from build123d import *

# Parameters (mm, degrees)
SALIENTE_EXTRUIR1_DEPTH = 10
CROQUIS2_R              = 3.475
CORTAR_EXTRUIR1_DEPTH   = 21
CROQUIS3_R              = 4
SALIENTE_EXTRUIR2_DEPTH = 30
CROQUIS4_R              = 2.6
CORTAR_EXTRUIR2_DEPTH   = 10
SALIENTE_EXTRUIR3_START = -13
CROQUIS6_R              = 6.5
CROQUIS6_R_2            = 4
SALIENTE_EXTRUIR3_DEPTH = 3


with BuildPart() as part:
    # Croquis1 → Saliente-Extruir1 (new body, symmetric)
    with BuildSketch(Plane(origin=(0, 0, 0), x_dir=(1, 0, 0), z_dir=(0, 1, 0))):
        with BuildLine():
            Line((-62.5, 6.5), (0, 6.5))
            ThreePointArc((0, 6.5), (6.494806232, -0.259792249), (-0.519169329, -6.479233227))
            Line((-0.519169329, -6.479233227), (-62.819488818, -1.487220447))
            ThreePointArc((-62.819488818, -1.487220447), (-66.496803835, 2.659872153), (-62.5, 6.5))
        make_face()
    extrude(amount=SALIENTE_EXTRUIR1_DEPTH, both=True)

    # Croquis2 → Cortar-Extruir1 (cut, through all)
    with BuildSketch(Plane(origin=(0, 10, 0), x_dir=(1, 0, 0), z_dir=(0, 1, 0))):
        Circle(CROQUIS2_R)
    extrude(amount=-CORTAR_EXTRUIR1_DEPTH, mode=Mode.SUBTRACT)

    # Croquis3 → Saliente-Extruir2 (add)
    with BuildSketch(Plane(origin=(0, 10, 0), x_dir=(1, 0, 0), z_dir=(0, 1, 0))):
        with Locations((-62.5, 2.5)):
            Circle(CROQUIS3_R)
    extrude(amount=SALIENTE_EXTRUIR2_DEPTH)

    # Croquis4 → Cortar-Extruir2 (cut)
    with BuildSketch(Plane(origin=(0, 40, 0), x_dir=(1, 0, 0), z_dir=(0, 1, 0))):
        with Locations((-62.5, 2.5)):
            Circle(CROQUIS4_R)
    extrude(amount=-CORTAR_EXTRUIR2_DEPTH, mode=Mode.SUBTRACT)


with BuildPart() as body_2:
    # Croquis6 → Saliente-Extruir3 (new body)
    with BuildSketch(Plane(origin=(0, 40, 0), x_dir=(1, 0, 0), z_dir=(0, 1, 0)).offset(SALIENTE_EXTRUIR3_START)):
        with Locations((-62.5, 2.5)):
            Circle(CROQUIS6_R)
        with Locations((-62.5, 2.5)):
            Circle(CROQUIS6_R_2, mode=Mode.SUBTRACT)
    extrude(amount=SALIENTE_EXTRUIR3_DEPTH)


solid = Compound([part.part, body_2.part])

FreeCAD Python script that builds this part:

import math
import FreeCAD as App
import Part
import Sketcher
from FreeCAD import Vector
Q = App.Units.Quantity

doc = App.newDocument("Part")
body = doc.addObject("PartDesign::Body", "Body")

sketch1 = body.newObject("Sketcher::SketchObject", "Sketch")
sketch1.AttachmentSupport = (doc.getObject("XZ_Plane"), [""])
sketch1.MapMode = "FlatFace"
sketch1.addGeometry(Part.LineSegment(Vector(0, -6.5, 0), Vector(-62.5, -6.5, 0)), False)
sketch1.addGeometry(Part.ArcOfCircle(Part.Circle(Vector(-62.5, -2.5, 0), Vector(0, 0, 1), 4), math.radians(95), math.radians(270)), False)
sketch1.addGeometry(Part.LineSegment(Vector(-62.8, 1.5, 0), Vector(-0.5, 6.5, 0)), False)
sketch1.addGeometry(Part.ArcOfCircle(Part.Circle(Vector(0, 0, 0), Vector(0, 0, 1), 6.5), math.radians(-90), math.radians(95)), False)
sketch1.addConstraint(Sketcher.Constraint("Tangent", 0, 2, 1, 2))
sketch1.addConstraint(Sketcher.Constraint("Tangent", 1, 1, 2, 1))
sketch1.addConstraint(Sketcher.Constraint("Tangent", 2, 2, 3, 2))
sketch1.addConstraint(Sketcher.Constraint("Tangent", 3, 1, 0, 1))
sketch1.addConstraint(Sketcher.Constraint("Horizontal", 0))
sketch1.addConstraint(Sketcher.Constraint("Coincident", 3, 3, -1, 1))
sketch1.addConstraint(Sketcher.Constraint("Radius", 1, Q("4 mm")))
sketch1.addConstraint(Sketcher.Constraint("Radius", 3, Q("6.5 mm")))
sketch1.addConstraint(Sketcher.Constraint("DistanceX", 0, 2, 0, 1, Q("62.5 mm")))
pad1 = body.newObject("PartDesign::Pad", "Pad")
pad1.Profile = sketch1
pad1.Length = 20
pad1.Midplane = True

sketch2 = body.newObject("Sketcher::SketchObject", "Sketch001")
sketch2.AttachmentSupport = (doc.getObject("XZ_Plane"), [""])
sketch2.MapMode = "FlatFace"
sketch2.AttachmentOffset = App.Placement(Vector(0, 0, -10), App.Rotation())
sketch2.addGeometry(Part.Circle(Vector(0, 0, 0), Vector(0, 0, 1), 3.5), False)
sketch2.addConstraint(Sketcher.Constraint("Coincident", 0, 3, -1, 1))
sketch2.addConstraint(Sketcher.Constraint("Diameter", 0, Q("6.95 mm")))
pocket1 = body.newObject("PartDesign::Pocket", "Pocket")
pocket1.Profile = sketch2
pocket1.Type = "ThroughAll"
pocket1.Reversed = True

sketch3 = body.newObject("Sketcher::SketchObject", "Sketch002")
sketch3.AttachmentSupport = (doc.getObject("XZ_Plane"), [""])
sketch3.MapMode = "FlatFace"
sketch3.AttachmentOffset = App.Placement(Vector(0, 0, -10), App.Rotation())
sketch3.addGeometry(Part.Circle(Vector(-62.5, -2.5, 0), Vector(0, 0, 1), 4), False)
sketch3.addConstraint(Sketcher.Constraint("Diameter", 0, Q("8 mm")))
sketch3.addConstraint(Sketcher.Constraint("DistanceX", 0, 3, -1, 1, Q("62.5 mm")))
sketch3.addConstraint(Sketcher.Constraint("DistanceY", 0, 3, -1, 1, Q("2.5 mm")))
pad2 = body.newObject("PartDesign::Pad", "Pad001")
pad2.Profile = sketch3
pad2.Length = 30
pad2.Reversed = True

sketch4 = body.newObject("Sketcher::SketchObject", "Sketch003")
sketch4.AttachmentSupport = (doc.getObject("XZ_Plane"), [""])
sketch4.MapMode = "FlatFace"
sketch4.AttachmentOffset = App.Placement(Vector(0, 0, -40), App.Rotation())
sketch4.addGeometry(Part.Circle(Vector(-62.5, -2.5, 0), Vector(0, 0, 1), 2.6), False)
sketch4.addConstraint(Sketcher.Constraint("Diameter", 0, Q("5.2 mm")))
sketch4.addConstraint(Sketcher.Constraint("DistanceX", 0, 3, -1, 1, Q("62.5 mm")))
sketch4.addConstraint(Sketcher.Constraint("DistanceY", 0, 3, -1, 1, Q("2.5 mm")))
pocket2 = body.newObject("PartDesign::Pocket", "Pocket001")
pocket2.Profile = sketch4
pocket2.Length = 10
pocket2.Reversed = True
body2 = doc.addObject("PartDesign::Body", "Body001")

sketch5 = body2.newObject("Sketcher::SketchObject", "Sketch004")
sketch5.AttachmentSupport = (doc.getObject("XZ_Plane001"), [""])
sketch5.MapMode = "FlatFace"
sketch5.AttachmentOffset = App.Placement(Vector(0, 0, -27), App.Rotation())
sketch5.addGeometry(Part.Circle(Vector(-62.5, -2.5, 0), Vector(0, 0, 1), 6.5), False)
sketch5.addGeometry(Part.Circle(Vector(-62.5, -2.5, 0), Vector(0, 0, 1), 4), False)
sketch5.addConstraint(Sketcher.Constraint("Coincident", 1, 3, 0, 3))
sketch5.addConstraint(Sketcher.Constraint("Diameter", 0, Q("13 mm")))
sketch5.addConstraint(Sketcher.Constraint("Diameter", 1, Q("8 mm")))
sketch5.addConstraint(Sketcher.Constraint("DistanceX", 0, 3, -1, 1, Q("62.5 mm")))
sketch5.addConstraint(Sketcher.Constraint("DistanceY", 0, 3, -1, 1, Q("2.5 mm")))
pad3 = body2.newObject("PartDesign::Pad", "Pad002")
pad3.Profile = sketch5
pad3.Length = 3
pad3.Reversed = True

doc.recompute()
